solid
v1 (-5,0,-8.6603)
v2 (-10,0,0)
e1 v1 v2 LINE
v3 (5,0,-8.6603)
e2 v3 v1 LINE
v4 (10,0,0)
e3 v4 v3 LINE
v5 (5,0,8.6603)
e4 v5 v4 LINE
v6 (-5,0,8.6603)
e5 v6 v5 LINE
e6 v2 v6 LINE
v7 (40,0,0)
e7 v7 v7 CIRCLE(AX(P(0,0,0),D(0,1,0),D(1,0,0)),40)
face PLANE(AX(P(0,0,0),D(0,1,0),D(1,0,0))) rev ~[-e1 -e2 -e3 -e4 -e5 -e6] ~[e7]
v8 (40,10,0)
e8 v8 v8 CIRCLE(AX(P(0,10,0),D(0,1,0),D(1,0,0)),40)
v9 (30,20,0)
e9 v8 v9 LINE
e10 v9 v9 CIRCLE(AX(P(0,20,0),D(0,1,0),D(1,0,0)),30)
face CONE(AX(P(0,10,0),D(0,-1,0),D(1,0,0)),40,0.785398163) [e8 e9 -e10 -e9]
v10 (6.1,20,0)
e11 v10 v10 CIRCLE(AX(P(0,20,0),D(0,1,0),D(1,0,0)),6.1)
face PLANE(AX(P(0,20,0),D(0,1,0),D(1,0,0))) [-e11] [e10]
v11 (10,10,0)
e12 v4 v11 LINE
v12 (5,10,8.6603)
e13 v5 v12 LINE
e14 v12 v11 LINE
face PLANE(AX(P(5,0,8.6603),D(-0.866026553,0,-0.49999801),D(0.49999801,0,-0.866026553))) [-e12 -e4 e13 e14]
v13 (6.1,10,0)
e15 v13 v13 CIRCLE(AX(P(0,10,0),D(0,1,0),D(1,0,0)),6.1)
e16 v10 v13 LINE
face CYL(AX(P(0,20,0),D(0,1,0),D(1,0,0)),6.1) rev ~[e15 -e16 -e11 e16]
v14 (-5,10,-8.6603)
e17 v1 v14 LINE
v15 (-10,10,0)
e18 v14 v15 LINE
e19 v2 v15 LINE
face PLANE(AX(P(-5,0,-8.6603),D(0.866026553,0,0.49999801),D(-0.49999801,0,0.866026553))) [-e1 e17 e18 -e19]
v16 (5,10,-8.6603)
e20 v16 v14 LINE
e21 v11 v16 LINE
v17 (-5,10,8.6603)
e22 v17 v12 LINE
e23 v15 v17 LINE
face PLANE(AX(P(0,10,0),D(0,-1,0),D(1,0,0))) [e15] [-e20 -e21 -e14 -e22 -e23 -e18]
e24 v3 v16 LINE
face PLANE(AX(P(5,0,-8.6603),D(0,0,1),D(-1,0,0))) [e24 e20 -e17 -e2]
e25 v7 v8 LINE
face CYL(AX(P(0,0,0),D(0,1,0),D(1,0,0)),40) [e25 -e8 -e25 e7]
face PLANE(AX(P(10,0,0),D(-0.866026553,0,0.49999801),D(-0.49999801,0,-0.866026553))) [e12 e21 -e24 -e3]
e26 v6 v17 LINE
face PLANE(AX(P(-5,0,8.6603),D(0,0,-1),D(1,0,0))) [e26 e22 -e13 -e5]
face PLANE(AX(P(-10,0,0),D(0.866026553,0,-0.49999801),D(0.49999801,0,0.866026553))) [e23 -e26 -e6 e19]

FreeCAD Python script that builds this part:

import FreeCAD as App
import Part
import Sketcher
from FreeCAD import Vector
Q = App.Units.Quantity

doc = App.newDocument("Part")
body = doc.addObject("PartDesign::Body", "Body")

# Sketch on XY plane
sketch1 = body.newObject("Sketcher::SketchObject", "Sketch")
sketch1.AttachmentSupport = (doc.getObject("XY_Plane"), [""])
sketch1.MapMode = "FlatFace"
sketch1.addGeometry(Part.LineSegment(Vector(-40, 10, 0), Vector(-40, 0, 0)), False)
sketch1.addGeometry(Part.LineSegment(Vector(-40, 0, 0), Vector(0, 0, 0)), False)
sketch1.addGeometry(Part.LineSegment(Vector(0, 0, 0), Vector(0, 20, 0)), False)
sketch1.addGeometry(Part.LineSegment(Vector(0, 20, 0), Vector(-30, 20, 0)), False)
sketch1.addGeometry(Part.LineSegment(Vector(-30, 20, 0), Vector(-40, 10, 0)), False)
sketch1.addConstraint(Sketcher.Constraint("Coincident", 0, 2, 1, 1))
sketch1.addConstraint(Sketcher.Constraint("Coincident", 1, 2, 2, 1))
sketch1.addConstraint(Sketcher.Constraint("Coincident", 2, 2, 3, 1))
sketch1.addConstraint(Sketcher.Constraint("Coincident", 3, 2, 4, 1))
sketch1.addConstraint(Sketcher.Constraint("Coincident", 4, 2, 0, 1))
sketch1.addConstraint(Sketcher.Constraint("Vertical", 0))
sketch1.addConstraint(Sketcher.Constraint("Horizontal", 1))
sketch1.addConstraint(Sketcher.Constraint("Vertical", 2))
sketch1.addConstraint(Sketcher.Constraint("Horizontal", 3))
sketch1.addConstraint(Sketcher.Constraint("Coincident", 1, 2, -1, 1))
sketch1.addConstraint(Sketcher.Constraint("DistanceX", 1, 1, 1, 2, 40.0))
sketch1.addConstraint(Sketcher.Constraint("DistanceX", 3, 2, 3, 1, 30.0))
sketch1.addConstraint(Sketcher.Constraint("DistanceY", 0, 2, 0, 1, 10.0))
sketch1.addConstraint(Sketcher.Constraint("Angle", 4, Q("-135 deg")))
revolution = body.newObject("PartDesign::Revolution", "Revolution")
revolution.Profile = sketch1
revolution.ReferenceAxis = (sketch1, ["V_Axis"])
revolution.Angle = 360

# Sketch on XZ plane
sketch2 = body.newObject("Sketcher::SketchObject", "Sketch001")
sketch2.AttachmentSupport = (doc.getObject("XZ_Plane"), [""])
sketch2.MapMode = "FlatFace"
sketch2.AttachmentOffset = App.Placement(Vector(0, 0, -20), App.Rotation())
sketch2.addGeometry(Part.Circle(Vector(0, 0, 0), Vector(0, 0, 1), 6), False)
sketch2.addConstraint(Sketcher.Constraint("Coincident", 0, 3, -1, 1))
sketch2.addConstraint(Sketcher.Constraint("Diameter", 0, 12.2))
pocket1 = body.newObject("PartDesign::Pocket", "Pocket")
pocket1.Profile = sketch2
pocket1.Type = "ThroughAll"
pocket1.Reversed = True

# Sketch on XZ plane
sketch3 = body.newObject("Sketcher::SketchObject", "Sketch002")
sketch3.AttachmentSupport = (doc.getObject("XZ_Plane"), [""])
sketch3.MapMode = "FlatFace"
sketch3.addGeometry(Part.LineSegment(Vector(10, 0, 0), Vector(5, 9, 0)), False)
sketch3.addGeometry(Part.LineSegment(Vector(5, 9, 0), Vector(-5, 9, 0)), False)
sketch3.addGeometry(Part.LineSegment(Vector(-5, 9, 0), Vector(-10, 0, 0)), False)
sketch3.addGeometry(Part.LineSegment(Vector(-10, 0, 0), Vector(-5, -9, 0)), False)
sketch3.addGeometry(Part.LineSegment(Vector(-5, -9, 0), Vector(5, -9, 0)), False)
sketch3.addGeometry(Part.LineSegment(Vector(5, -9, 0), Vector(10, 0, 0)), False)
sketch3.addConstraint(Sketcher.Constraint("Coincident", 0, 2, 1, 1))
sketch3.addConstraint(Sketcher.Constraint("Coincident", 1, 2, 2, 1))
sketch3.addConstraint(Sketcher.Constraint("Coincident", 2, 2, 3, 1))
sketch3.addConstraint(Sketcher.Constraint("Coincident", 3, 2, 4, 1))
sketch3.addConstraint(Sketcher.Constraint("Coincident", 4, 2, 5, 1))
sketch3.addConstraint(Sketcher.Constraint("Coincident", 5, 2, 0, 1))
sketch3.addConstraint(Sketcher.Constraint("Horizontal", 1))
sketch3.addConstraint(Sketcher.Constraint("Horizontal", 4))
sketch3.addConstraint(Sketcher.Constraint("Symmetric", 0, 2, 3, 2, -1, 1))
sketch3.addConstraint(Sketcher.Constraint("Symmetric", 2, 2, 5, 2, -1, 1))
sketch3.addConstraint(Sketcher.Constraint("PointOnObject", 2, 2, -1))
sketch3.addConstraint(Sketcher.Constraint("Parallel", 2, 5))
sketch3.addConstraint(Sketcher.Constraint("Vertical", 1, 2, 3, 2))
sketch3.addConstraint(Sketcher.Constraint("DistanceX", 1, 2, 1, 1, 10.0))
sketch3.addConstraint(Sketcher.Constraint("Distance", 0, 10.0))
sketch3.addConstraint(Sketcher.Constraint("DistanceX", 2, 2, -1, 1, 10.0))
pocket2 = body.newObject("PartDesign::Pocket", "Pocket001")
pocket2.Profile = sketch3
pocket2.Length = 10

doc.recompute()
